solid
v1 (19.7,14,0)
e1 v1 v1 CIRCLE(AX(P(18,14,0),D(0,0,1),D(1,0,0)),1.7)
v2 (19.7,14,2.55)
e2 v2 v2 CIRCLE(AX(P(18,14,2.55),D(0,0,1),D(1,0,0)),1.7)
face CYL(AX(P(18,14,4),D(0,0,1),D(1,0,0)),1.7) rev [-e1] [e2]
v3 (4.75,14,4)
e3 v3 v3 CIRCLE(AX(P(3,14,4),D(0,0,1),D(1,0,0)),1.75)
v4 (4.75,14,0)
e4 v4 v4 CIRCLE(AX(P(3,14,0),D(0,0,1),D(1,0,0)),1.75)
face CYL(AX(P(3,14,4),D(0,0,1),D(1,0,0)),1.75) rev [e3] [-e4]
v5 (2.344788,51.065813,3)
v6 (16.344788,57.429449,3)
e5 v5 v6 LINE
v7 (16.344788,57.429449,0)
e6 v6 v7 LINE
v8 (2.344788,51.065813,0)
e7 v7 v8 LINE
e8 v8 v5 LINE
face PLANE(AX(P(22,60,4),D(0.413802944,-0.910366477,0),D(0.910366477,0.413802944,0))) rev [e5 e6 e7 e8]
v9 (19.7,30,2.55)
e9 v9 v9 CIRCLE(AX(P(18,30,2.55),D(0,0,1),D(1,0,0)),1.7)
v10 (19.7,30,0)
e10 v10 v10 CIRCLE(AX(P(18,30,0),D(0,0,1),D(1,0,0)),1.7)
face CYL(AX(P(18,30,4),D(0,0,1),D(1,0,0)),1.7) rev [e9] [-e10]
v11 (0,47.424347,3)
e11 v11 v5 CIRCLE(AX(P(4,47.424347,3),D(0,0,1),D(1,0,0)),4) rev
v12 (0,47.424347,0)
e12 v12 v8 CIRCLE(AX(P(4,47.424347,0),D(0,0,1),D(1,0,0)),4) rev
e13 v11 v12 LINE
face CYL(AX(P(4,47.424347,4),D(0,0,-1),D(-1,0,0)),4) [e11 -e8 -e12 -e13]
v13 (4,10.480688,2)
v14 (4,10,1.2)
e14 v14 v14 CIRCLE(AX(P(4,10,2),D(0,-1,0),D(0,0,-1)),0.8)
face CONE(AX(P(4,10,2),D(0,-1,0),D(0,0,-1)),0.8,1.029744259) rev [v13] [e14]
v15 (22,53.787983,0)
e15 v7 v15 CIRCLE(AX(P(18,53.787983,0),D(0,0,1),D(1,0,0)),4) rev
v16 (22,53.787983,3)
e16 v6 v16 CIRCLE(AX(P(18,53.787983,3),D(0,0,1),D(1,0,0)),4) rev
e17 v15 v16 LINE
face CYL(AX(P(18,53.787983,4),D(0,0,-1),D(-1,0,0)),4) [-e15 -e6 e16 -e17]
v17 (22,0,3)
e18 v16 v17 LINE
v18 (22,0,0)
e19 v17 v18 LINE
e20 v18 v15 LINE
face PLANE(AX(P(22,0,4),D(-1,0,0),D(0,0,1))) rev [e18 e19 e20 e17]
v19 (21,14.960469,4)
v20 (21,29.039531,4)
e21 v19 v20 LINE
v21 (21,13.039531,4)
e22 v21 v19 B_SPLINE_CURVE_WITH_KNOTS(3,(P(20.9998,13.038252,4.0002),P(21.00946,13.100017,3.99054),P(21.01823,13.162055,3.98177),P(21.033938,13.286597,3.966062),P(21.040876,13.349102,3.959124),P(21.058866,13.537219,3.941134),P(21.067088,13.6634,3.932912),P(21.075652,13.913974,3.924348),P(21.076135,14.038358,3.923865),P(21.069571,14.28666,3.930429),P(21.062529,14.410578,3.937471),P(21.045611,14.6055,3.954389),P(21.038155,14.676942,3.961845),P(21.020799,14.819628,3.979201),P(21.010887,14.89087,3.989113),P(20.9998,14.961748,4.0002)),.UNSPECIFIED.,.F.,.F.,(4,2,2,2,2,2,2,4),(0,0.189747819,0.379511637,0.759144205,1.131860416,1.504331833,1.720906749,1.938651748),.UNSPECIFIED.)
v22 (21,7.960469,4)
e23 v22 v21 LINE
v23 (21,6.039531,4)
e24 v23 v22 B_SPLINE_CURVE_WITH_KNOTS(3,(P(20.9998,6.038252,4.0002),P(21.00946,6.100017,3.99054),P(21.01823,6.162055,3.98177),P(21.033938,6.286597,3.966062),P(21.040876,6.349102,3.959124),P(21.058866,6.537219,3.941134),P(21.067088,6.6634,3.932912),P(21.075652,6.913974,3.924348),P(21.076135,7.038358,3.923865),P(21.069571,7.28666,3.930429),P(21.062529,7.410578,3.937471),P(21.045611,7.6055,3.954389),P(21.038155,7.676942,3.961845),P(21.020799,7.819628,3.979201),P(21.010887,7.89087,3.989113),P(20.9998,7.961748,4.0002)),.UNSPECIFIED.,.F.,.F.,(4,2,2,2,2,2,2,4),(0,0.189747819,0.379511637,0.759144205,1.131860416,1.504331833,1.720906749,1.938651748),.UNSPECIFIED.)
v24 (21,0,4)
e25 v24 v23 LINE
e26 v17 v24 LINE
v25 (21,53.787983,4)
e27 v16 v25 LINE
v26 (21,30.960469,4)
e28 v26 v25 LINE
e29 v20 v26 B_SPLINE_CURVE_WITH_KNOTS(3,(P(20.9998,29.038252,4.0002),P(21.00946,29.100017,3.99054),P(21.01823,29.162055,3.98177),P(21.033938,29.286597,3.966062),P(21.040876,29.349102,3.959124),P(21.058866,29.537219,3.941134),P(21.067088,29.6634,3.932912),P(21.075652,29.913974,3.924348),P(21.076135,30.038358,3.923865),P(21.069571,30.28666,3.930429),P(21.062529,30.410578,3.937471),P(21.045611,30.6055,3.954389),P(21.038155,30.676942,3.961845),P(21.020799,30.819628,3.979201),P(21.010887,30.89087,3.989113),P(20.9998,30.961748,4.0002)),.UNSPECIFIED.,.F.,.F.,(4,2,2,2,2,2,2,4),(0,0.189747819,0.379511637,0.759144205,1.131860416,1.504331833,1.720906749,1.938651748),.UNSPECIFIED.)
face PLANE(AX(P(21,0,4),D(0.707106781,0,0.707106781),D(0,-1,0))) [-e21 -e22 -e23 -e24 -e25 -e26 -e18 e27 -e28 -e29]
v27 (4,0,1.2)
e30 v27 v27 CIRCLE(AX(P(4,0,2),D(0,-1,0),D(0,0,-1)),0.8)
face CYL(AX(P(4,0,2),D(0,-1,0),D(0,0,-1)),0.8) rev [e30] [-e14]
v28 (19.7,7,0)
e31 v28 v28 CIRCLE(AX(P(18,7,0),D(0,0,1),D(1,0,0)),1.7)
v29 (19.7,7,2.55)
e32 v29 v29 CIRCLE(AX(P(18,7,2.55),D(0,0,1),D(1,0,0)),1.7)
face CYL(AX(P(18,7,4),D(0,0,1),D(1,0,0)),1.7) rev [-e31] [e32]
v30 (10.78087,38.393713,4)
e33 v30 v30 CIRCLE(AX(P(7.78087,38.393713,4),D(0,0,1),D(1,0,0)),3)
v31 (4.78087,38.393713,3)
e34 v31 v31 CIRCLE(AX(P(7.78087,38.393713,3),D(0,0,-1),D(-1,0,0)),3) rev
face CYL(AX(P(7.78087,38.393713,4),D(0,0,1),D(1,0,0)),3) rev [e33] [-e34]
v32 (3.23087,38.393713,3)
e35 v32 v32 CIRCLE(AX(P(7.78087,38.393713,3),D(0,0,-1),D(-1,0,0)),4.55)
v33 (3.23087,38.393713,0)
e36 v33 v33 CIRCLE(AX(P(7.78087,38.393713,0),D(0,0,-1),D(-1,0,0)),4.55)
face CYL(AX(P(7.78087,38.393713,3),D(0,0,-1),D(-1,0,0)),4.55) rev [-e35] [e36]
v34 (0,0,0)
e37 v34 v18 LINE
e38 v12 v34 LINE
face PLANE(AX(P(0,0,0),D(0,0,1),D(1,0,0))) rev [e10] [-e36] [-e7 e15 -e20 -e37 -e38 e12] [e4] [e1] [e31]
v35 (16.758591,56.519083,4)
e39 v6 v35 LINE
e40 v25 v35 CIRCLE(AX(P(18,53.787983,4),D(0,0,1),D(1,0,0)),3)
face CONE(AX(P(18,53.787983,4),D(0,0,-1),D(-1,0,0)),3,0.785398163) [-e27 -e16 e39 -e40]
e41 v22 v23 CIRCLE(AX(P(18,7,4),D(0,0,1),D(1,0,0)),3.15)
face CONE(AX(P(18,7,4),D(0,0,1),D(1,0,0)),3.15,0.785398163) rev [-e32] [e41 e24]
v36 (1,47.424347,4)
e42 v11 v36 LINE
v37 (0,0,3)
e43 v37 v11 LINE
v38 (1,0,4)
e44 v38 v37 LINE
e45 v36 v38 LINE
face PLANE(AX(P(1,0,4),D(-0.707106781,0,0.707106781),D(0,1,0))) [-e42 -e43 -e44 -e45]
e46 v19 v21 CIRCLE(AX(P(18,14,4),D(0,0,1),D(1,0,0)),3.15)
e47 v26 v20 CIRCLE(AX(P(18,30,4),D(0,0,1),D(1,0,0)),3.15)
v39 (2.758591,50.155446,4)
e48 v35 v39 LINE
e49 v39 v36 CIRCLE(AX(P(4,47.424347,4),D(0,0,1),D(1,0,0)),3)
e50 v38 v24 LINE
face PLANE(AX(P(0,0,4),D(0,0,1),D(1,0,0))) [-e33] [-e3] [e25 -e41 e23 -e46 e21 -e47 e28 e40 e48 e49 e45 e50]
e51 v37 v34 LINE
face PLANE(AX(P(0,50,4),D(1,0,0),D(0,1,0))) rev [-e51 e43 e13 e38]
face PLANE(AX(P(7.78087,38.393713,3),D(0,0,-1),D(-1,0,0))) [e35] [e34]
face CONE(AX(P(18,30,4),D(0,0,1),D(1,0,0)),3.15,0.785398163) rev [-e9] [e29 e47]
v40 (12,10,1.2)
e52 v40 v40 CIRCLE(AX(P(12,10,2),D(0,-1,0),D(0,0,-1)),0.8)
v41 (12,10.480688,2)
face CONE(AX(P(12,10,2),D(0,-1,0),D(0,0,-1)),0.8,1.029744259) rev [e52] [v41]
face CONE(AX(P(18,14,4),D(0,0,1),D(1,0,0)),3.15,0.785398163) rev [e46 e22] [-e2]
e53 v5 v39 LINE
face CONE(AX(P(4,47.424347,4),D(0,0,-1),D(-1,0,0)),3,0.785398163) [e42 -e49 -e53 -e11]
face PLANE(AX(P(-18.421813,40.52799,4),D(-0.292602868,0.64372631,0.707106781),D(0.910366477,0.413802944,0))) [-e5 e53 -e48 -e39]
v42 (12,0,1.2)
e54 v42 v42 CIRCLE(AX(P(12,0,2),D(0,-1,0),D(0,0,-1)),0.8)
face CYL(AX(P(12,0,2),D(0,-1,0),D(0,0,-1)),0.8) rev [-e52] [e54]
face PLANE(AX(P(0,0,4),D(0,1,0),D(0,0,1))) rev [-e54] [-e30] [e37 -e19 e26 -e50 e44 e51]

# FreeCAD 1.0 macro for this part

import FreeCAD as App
import Part
import Sketcher

V = App.Vector


def edges_at(feature, points):
    """Names of the edges that pass closest to the given points."""
    edges = feature.Shape.Edges
    near = lambda p: min(range(len(edges)), key=lambda i: edges[i].distToShape(Part.Vertex(*p))[0])
    return sorted({f"Edge{near(p) + 1}" for p in points})

doc = App.newDocument("Part")
body = doc.addObject("PartDesign::Body", "Body")

# Sketch on XY plane
sketch1 = doc.addObject("Sketcher::SketchObject", "Sketch")
body.addObject(sketch1)
sketch1.AttachmentSupport = (doc.XY_Plane, [""])
sketch1.MapMode = "FlatFace"
sketch1.addGeometry(Part.LineSegment(V(0, 0, 0), V(22, 0, 0)), False)
sketch1.addGeometry(Part.LineSegment(V(22, 0, 0), V(22, 60, 0)), False)
sketch1.addGeometry(Part.LineSegment(V(22, 60, 0), V(0, 50, 0)), False)
sketch1.addGeometry(Part.LineSegment(V(0, 50, 0), V(0, 0, 0)), False)
sketch1.addConstraint(Sketcher.Constraint("Coincident", 0, 2, 1, 1))
sketch1.addConstraint(Sketcher.Constraint("Coincident", 1, 2, 2, 1))
sketch1.addConstraint(Sketcher.Constraint("Coincident", 2, 2, 3, 1))
sketch1.addConstraint(Sketcher.Constraint("Coincident", 3, 2, 0, 1))
sketch1.addConstraint(Sketcher.Constraint("Horizontal", 0))
sketch1.addConstraint(Sketcher.Constraint("Vertical", 1))
sketch1.addConstraint(Sketcher.Constraint("Vertical", 3))
sketch1.addConstraint(Sketcher.Constraint("Coincident", 3, 2, -1, 1))
sketch1.addConstraint(Sketcher.Constraint("DistanceX", 0, 1, 0, 2, 22.0))
sketch1.addConstraint(Sketcher.Constraint("DistanceY", 1, 1, 1, 2, 60.0))
sketch1.addConstraint(Sketcher.Constraint("DistanceY", 3, 2, 3, 1, 50.0))
pad1 = doc.addObject("PartDesign::Pad", "Pad")
body.addObject(pad1)
pad1.Profile = sketch1
pad1.Length = 4
doc.recompute()

fillet = doc.addObject("PartDesign::Fillet", "Fillet")
body.addObject(fillet)
fillet.Base = (pad1, edges_at(pad1, [(0, 50, 2), (22, 60, 2)]))
fillet.Radius = 4
doc.recompute()

chamfer = doc.addObject("PartDesign::Chamfer", "Chamfer")
body.addObject(chamfer)
chamfer.Base = (fillet, edges_at(fillet, [
    (22, 26.894, 4),
    (0, 23.712, 4),
    (9.345, 54.248, 4),
    (20.166, 57.151, 4),
    (0.637, 49.59, 4),
]))
chamfer.Size = 1

# Sketch on XY plane
sketch2 = doc.addObject("Sketcher::SketchObject", "Sketch001")
body.addObject(sketch2)
sketch2.AttachmentSupport = (doc.XY_Plane, [""])
sketch2.MapMode = "FlatFace"
sketch2.AttachmentOffset = App.Placement(V(0, 0, 4), App.Rotation())
sketch2.addGeometry(Part.Circle(V(7.8, 38.4, 0), V(0, 0, 1), 3), False)
sketch2.addConstraint(Sketcher.Constraint("Diameter", 0, 6.0))
sketch2.addConstraint(Sketcher.Constraint("DistanceX", -1, 1, 0, 3, 7.78087))
sketch2.addConstraint(Sketcher.Constraint("DistanceY", -1, 1, 0, 3, 38.393713))
doc.recompute()
hole = doc.addObject("PartDesign::Hole", "Hole")
body.addObject(hole)
hole.Profile = sketch2
hole.ThreadType = "None"
hole.Diameter = 6
hole.DepthType = "ThroughAll"

# Sketch on XY plane
sketch3 = doc.addObject("Sketcher::SketchObject", "Sketch002")
body.addObject(sketch3)
sketch3.AttachmentSupport = (doc.XY_Plane, [""])
sketch3.MapMode = "FlatFace"
sketch3.AttachmentOffset = App.Placement(V(0, 0, 4), App.Rotation())
sketch3.addGeometry(Part.Circle(V(18, 7, 0), V(0, 0, 1), 1.7), False)
sketch3.addGeometry(Part.Circle(V(18, 14, 0), V(0, 0, 1), 1.7), False)
sketch3.addConstraint(Sketcher.Constraint("Equal", 0, 1))
sketch3.addConstraint(Sketcher.Constraint("Vertical", 0, 3, 1, 3))
sketch3.addConstraint(Sketcher.Constraint("Diameter", 0, 3.4))
sketch3.addConstraint(Sketcher.Constraint("DistanceX", -1, 1, 0, 3, 18.0))
sketch3.addConstraint(Sketcher.Constraint("DistanceY", -1, 1, 0, 3, 7.0))
sketch3.addConstraint(Sketcher.Constraint("DistanceY", -1, 1, 1, 3, 14.0))
doc.recompute()
hole2 = doc.addObject("PartDesign::Hole", "Hole001")
body.addObject(hole2)
hole2.Profile = sketch3
hole2.ThreadType = "None"
hole2.Diameter = 3.4
hole2.DepthType = "ThroughAll"
hole2.HoleCutType = "Countersink"
hole2.HoleCutDiameter = 6.3
hole2.HoleCutCountersinkAngle = 90

# Sketch on XZ plane
sketch4 = doc.addObject("Sketcher::SketchObject", "Sketch003")
body.addObject(sketch4)
sketch4.AttachmentSupport = (doc.XZ_Plane, [""])
sketch4.MapMode = "FlatFace"
sketch4.addGeometry(Part.Circle(V(4, 2, 0), V(0, 0, 1), 0.8), False)
sketch4.addGeometry(Part.Circle(V(12, 2, 0), V(0, 0, 1), 0.8), False)
sketch4.addConstraint(Sketcher.Constraint("Equal", 0, 1))
sketch4.addConstraint(Sketcher.Constraint("Horizontal", 0, 3, 1, 3))
sketch4.addConstraint(Sketcher.Constraint("Diameter", 0, 1.6))
sketch4.addConstraint(Sketcher.Constraint("DistanceX", -1, 1, 0, 3, 4.0))
sketch4.addConstraint(Sketcher.Constraint("DistanceY", -1, 1, 0, 3, 2.0))
sketch4.addConstraint(Sketcher.Constraint("DistanceX", -1, 1, 1, 3, 12.0))
doc.recompute()
hole3 = doc.addObject("PartDesign::Hole", "Hole002")
body.addObject(hole3)
hole3.Profile = sketch4
hole3.ThreadType = "None"
hole3.Diameter = 1.6
hole3.DepthType = "Dimension"
hole3.Depth = 10
hole3.DrillPoint = "Angled"
hole3.DrillPointAngle = 118

# Sketch on XY plane
sketch5 = doc.addObject("Sketcher::SketchObject", "Sketch004")
body.addObject(sketch5)
sketch5.AttachmentSupport = (doc.XY_Plane, [""])
sketch5.MapMode = "FlatFace"
sketch5.AttachmentOffset = App.Placement(V(0, 0, 4), App.Rotation())
sketch5.addGeometry(Part.Circle(V(18, 30, 0), V(0, 0, 1), 1.7), False)
sketch5.addConstraint(Sketcher.Constraint("Diameter", 0, 3.4))
sketch5.addConstraint(Sketcher.Constraint("DistanceX", -1, 1, 0, 3, 18.0))
sketch5.addConstraint(Sketcher.Constraint("DistanceY", -1, 1, 0, 3, 30.0))
doc.recompute()
hole4 = doc.addObject("PartDesign::Hole", "Hole003")
body.addObject(hole4)
hole4.Profile = sketch5
hole4.ThreadType = "None"
hole4.Diameter = 3.4
hole4.DepthType = "Dimension"
hole4.Depth = 4
hole4.DrillPoint = "Angled"
hole4.DrillPointAngle = 118
hole4.HoleCutType = "Countersink"
hole4.HoleCutDiameter = 6.3
hole4.HoleCutCountersinkAngle = 90

# Sketch on XY plane
sketch6 = doc.addObject("Sketcher::SketchObject", "Sketch005")
body.addObject(sketch6)
sketch6.AttachmentSupport = (doc.XY_Plane, [""])
sketch6.MapMode = "FlatFace"
sketch6.addGeometry(Part.Circle(V(7.8, 38.4, 0), V(0, 0, 1), 4.5), False)
sketch6.addConstraint(Sketcher.Constraint("Diameter", 0, 9.1))
sketch6.addConstraint(Sketcher.Constraint("DistanceX", -1, 1, 0, 3, 7.78087))
sketch6.addConstraint(Sketcher.Constraint("DistanceY", -1, 1, 0, 3, 38.393713))
pocket1 = doc.addObject("PartDesign::Pocket", "Pocket")
body.addObject(pocket1)
pocket1.Profile = sketch6
pocket1.Length = 3
pocket1.Reversed = True

# Sketch on XY plane
sketch7 = doc.addObject("Sketcher::SketchObject", "Sketch006")
body.addObject(sketch7)
sketch7.AttachmentSupport = (doc.XY_Plane, [""])
sketch7.MapMode = "FlatFace"
sketch7.AttachmentOffset = App.Placement(V(0, 0, 4), App.Rotation())
sketch7.addGeometry(Part.Circle(V(3, 14, 0), V(0, 0, 1), 1.8), False)
sketch7.addConstraint(Sketcher.Constraint("Diameter", 0, 3.5))
sketch7.addConstraint(Sketcher.Constraint("DistanceX", -1, 1, 0, 3, 3.0))
sketch7.addConstraint(Sketcher.Constraint("DistanceY", -1, 1, 0, 3, 14.0))
doc.recompute()
hole5 = doc.addObject("PartDesign::Hole", "Hole004")
body.addObject(hole5)
hole5.Profile = sketch7
hole5.ThreadType = "None"
hole5.Diameter = 3.5
hole5.DepthType = "ThroughAll"

doc.recompute()
